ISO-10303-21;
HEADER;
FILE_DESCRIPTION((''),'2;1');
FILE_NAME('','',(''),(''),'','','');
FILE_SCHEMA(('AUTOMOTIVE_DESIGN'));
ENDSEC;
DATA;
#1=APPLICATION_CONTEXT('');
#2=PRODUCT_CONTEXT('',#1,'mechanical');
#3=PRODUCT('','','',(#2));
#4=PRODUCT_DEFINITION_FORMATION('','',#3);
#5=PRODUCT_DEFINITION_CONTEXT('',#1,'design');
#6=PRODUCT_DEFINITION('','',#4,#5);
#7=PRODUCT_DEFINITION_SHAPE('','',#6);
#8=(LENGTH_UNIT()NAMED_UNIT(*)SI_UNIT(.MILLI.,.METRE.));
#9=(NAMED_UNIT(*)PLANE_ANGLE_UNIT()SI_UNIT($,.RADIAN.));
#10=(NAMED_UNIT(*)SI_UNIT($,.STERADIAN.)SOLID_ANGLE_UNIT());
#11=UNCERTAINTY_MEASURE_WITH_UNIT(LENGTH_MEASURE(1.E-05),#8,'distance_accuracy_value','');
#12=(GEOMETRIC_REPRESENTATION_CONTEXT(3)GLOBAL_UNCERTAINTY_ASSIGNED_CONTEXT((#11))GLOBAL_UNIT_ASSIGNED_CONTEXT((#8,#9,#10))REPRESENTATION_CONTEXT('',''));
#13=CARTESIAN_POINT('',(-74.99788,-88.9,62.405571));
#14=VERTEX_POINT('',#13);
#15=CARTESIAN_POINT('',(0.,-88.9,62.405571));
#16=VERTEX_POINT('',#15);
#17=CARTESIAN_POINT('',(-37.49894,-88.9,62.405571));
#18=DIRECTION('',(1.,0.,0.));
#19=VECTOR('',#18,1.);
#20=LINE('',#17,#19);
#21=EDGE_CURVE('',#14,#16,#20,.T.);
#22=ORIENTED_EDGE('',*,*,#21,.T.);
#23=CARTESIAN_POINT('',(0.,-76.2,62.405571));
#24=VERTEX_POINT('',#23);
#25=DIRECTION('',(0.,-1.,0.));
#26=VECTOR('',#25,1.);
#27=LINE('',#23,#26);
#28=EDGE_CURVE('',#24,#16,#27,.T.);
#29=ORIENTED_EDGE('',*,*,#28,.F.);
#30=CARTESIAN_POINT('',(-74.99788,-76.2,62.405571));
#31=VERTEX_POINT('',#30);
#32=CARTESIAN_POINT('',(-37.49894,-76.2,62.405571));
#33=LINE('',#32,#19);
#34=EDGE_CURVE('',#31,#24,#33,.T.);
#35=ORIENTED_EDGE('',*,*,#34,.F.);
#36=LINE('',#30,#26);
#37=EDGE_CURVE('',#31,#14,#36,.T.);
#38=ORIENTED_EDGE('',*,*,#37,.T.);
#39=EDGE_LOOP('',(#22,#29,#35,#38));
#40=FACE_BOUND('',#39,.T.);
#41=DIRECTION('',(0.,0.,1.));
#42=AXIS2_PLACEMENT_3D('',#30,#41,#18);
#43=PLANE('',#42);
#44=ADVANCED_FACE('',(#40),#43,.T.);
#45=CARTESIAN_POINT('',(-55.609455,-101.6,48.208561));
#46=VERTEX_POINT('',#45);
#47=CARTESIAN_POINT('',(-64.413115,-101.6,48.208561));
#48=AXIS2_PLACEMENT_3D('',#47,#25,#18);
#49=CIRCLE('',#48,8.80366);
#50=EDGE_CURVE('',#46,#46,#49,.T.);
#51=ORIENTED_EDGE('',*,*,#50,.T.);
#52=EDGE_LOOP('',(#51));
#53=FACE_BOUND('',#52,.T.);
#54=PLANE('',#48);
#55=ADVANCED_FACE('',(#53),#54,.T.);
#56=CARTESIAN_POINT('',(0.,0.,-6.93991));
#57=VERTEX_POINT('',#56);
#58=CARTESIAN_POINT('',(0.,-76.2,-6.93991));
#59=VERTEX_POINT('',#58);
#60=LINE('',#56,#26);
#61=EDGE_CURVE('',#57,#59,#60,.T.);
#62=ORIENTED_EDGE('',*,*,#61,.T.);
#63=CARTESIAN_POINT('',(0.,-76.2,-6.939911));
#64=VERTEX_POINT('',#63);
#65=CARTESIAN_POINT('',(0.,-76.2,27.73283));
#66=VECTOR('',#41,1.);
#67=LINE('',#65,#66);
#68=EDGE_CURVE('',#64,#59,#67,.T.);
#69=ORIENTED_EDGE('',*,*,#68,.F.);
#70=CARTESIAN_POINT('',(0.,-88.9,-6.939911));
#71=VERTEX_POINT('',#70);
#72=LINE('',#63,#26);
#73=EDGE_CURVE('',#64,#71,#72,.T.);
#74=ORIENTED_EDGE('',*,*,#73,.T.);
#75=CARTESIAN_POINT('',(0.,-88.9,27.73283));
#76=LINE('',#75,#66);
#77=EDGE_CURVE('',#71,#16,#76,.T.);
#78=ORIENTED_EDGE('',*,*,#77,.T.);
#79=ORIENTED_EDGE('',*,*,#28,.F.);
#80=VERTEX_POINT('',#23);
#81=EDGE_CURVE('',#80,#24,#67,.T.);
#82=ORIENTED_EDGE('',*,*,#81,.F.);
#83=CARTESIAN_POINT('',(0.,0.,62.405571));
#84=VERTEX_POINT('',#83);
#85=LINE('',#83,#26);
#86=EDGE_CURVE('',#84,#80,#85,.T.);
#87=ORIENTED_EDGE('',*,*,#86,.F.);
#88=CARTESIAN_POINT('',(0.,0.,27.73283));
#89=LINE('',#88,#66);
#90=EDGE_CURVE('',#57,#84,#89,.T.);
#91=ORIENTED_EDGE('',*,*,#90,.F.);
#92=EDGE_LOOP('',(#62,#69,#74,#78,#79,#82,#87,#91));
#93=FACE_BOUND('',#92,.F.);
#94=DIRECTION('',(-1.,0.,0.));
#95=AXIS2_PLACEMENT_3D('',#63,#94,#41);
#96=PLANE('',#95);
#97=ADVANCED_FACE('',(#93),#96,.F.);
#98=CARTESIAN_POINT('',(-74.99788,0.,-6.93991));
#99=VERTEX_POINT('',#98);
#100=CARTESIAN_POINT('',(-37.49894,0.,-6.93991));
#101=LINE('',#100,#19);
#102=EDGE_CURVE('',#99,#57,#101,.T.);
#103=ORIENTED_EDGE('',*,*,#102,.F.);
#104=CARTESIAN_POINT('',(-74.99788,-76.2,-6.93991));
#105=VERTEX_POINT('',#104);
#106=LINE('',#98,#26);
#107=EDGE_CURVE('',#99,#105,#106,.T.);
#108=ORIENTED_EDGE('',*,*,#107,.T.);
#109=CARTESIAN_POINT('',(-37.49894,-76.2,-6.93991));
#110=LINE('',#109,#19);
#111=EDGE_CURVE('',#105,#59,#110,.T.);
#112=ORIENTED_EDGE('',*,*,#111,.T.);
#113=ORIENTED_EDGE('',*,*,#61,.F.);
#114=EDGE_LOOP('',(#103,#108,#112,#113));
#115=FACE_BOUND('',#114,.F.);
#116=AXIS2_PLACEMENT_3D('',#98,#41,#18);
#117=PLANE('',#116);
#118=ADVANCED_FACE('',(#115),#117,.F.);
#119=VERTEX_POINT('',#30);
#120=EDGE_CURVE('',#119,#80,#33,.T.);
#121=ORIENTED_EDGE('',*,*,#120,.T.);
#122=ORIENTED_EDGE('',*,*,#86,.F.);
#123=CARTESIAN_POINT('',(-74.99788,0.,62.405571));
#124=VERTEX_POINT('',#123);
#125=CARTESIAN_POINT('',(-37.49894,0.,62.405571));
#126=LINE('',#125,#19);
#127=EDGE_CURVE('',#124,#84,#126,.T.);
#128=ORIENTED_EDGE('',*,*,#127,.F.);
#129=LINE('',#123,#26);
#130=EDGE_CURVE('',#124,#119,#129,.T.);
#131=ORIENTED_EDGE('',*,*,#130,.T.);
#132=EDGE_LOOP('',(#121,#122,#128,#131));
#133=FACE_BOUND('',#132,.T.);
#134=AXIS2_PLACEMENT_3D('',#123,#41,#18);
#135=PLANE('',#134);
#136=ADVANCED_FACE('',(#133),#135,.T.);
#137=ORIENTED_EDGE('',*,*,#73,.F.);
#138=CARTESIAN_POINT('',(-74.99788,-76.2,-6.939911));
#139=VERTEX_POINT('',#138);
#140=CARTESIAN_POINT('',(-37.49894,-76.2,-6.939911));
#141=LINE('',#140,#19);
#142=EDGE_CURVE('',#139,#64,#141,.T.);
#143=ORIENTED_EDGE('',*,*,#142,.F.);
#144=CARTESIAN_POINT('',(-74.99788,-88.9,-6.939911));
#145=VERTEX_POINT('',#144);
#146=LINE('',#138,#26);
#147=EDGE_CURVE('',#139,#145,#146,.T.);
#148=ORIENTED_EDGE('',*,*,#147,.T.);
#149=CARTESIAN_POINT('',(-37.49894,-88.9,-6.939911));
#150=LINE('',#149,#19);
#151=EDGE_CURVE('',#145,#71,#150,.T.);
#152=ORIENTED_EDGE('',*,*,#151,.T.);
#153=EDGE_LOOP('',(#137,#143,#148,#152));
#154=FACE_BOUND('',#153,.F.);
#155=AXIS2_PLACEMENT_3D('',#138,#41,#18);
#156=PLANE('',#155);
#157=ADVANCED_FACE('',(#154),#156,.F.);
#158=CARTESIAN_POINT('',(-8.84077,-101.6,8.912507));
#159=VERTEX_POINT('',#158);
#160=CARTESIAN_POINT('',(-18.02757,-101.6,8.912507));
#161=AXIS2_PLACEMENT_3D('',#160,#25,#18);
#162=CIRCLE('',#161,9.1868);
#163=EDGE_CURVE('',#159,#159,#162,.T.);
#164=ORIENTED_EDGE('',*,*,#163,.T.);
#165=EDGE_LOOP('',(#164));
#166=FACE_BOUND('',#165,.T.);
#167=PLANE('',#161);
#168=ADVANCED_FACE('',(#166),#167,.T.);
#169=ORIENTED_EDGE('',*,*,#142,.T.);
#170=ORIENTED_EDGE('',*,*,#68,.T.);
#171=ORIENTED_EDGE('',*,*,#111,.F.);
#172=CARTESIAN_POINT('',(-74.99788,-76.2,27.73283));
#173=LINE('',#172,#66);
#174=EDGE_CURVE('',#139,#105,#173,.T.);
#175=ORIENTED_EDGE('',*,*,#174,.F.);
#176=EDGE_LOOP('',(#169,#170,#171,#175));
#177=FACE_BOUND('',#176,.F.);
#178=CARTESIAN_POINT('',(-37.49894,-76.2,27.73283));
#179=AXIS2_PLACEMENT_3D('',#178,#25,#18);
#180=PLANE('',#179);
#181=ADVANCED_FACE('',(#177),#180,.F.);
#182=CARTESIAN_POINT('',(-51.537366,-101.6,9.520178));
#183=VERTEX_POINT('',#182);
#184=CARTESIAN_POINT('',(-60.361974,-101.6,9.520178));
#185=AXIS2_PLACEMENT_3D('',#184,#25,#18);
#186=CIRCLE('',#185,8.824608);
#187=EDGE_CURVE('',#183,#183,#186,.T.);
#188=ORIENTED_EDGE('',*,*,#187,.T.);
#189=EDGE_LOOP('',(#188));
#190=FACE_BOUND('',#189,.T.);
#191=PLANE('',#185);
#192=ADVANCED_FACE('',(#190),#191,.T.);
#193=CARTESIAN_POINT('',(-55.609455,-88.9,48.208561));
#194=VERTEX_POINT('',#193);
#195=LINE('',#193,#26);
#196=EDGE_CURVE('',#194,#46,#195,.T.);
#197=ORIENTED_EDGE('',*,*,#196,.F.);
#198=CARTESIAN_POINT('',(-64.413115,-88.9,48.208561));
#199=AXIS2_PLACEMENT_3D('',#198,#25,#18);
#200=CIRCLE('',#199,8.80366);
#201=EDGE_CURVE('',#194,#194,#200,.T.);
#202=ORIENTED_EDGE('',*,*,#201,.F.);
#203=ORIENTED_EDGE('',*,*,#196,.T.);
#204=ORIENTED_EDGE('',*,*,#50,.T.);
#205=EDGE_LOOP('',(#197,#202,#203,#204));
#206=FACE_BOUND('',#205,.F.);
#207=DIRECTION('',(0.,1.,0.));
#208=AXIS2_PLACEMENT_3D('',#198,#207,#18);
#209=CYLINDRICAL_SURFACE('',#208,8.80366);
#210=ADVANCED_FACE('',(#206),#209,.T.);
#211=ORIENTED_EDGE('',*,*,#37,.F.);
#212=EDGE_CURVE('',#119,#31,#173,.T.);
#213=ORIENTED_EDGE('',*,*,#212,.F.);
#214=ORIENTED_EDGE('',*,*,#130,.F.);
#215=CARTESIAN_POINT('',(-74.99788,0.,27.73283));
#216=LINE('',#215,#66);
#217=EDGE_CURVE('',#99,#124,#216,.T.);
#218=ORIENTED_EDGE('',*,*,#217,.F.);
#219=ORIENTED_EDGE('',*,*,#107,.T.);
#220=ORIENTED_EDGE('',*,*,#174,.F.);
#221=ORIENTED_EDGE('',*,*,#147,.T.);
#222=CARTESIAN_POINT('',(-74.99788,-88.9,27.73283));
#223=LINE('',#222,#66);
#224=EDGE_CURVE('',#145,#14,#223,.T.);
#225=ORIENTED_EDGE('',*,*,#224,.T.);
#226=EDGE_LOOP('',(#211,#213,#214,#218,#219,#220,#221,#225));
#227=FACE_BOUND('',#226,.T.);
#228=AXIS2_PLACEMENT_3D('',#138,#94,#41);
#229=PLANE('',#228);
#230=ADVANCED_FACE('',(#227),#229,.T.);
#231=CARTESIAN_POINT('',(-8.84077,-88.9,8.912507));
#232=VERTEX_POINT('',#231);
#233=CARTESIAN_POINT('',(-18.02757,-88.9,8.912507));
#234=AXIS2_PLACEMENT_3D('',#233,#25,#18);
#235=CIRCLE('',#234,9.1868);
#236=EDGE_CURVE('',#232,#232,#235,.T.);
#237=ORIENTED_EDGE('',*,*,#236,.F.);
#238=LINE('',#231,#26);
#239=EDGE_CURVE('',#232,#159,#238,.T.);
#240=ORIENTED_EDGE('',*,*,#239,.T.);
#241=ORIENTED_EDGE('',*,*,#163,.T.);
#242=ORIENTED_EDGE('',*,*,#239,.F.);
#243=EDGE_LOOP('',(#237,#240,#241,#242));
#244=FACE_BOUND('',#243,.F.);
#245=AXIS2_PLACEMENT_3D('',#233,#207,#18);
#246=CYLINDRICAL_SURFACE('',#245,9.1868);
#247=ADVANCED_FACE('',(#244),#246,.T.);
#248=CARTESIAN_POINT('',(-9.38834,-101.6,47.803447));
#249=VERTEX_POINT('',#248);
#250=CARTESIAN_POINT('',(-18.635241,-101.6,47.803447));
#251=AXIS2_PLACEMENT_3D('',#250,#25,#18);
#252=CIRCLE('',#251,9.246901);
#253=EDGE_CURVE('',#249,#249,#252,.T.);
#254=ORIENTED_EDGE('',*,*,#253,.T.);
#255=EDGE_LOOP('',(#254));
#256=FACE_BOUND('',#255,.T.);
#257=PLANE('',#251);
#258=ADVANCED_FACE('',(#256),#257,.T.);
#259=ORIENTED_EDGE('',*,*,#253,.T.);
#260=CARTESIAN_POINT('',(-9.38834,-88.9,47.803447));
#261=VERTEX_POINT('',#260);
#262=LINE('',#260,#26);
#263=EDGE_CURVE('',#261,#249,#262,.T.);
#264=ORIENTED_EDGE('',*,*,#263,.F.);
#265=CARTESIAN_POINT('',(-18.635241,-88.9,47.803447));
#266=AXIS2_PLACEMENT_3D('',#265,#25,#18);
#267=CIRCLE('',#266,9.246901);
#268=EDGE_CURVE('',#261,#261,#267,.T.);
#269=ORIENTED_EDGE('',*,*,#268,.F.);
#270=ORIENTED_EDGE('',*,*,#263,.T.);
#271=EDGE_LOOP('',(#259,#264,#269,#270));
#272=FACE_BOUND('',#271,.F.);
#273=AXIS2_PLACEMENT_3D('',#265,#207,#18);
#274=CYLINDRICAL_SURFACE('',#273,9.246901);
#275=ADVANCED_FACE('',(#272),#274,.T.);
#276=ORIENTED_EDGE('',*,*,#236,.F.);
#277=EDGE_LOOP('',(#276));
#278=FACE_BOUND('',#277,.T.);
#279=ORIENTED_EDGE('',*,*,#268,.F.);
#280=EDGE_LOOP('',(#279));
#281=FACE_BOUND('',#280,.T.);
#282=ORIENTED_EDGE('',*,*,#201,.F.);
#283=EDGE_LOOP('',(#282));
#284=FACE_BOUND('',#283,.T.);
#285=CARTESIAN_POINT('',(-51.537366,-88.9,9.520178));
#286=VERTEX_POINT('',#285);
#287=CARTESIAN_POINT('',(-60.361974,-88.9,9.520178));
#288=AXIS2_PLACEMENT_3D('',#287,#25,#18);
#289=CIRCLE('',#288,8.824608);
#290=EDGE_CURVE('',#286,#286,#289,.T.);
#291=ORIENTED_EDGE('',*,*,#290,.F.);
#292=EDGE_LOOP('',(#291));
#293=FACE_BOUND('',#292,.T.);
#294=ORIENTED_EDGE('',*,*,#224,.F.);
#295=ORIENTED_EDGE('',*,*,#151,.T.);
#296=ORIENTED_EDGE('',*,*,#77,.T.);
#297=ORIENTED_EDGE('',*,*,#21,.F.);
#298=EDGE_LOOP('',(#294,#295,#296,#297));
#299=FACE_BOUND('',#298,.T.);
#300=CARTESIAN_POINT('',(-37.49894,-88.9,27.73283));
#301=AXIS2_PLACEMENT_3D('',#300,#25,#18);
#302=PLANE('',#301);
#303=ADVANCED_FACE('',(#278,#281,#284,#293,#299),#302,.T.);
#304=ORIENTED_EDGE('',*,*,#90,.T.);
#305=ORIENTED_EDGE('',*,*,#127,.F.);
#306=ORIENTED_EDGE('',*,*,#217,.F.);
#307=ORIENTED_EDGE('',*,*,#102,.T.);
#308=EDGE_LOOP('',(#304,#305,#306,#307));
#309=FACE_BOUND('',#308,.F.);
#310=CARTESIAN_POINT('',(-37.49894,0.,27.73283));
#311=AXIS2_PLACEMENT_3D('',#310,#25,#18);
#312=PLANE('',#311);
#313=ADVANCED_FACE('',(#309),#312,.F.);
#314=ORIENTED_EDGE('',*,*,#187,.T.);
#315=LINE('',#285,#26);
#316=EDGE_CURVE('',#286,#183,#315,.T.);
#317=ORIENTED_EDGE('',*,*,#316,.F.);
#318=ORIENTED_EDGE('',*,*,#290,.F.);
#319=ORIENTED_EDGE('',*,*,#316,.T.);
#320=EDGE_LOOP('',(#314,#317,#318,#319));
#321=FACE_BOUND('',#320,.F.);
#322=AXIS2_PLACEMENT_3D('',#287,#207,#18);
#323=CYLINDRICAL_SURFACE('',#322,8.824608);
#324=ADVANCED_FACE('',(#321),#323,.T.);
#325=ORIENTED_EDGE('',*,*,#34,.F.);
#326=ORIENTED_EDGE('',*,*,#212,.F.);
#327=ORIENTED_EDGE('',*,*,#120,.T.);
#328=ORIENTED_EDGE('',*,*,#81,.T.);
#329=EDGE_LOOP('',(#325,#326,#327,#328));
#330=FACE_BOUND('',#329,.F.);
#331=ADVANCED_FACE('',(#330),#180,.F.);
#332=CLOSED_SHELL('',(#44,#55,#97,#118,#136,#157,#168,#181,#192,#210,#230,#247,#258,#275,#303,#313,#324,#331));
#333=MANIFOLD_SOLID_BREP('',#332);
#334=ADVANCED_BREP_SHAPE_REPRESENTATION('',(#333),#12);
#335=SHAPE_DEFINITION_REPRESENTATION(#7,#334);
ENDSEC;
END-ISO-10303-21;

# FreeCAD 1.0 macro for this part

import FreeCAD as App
import Part
import Sketcher
from FreeCAD import Vector
Q = App.Units.Quantity


def add_polygon(sketch, points):
    """Adds a closed chain of lines whose ends are joined by coincident constraints."""
    first, n = sketch.GeometryCount, len(points)
    for a, b in zip(points, points[1:] + points[:1]):
        sketch.addGeometry(Part.LineSegment(App.Vector(*a, 0), App.Vector(*b, 0)), False)
    for i in range(n):
        sketch.addConstraint(Sketcher.Constraint("Coincident", first + i, 2, first + (i + 1) % n, 1))

doc = App.newDocument("Part")
body = doc.addObject("PartDesign::Body", "Body")

# Sketch on XZ plane
sketch1 = doc.addObject("Sketcher::SketchObject", "Sketch")
body.addObject(sketch1)
sketch1.AttachmentSupport = (doc.XZ_Plane, [""])
sketch1.MapMode = "FlatFace"
add_polygon(sketch1, [(-75, 62), (-75, -7), (0, -7), (0, 62)])  # lines 0-3
sketch1.addConstraint([
    Sketcher.Constraint("Vertical", 0),
    Sketcher.Constraint("Horizontal", 1),
    Sketcher.Constraint("Vertical", 2),
    Sketcher.Constraint("Horizontal", 3),
    Sketcher.Constraint("PointOnObject", 1, 2, -2),
    Sketcher.Constraint("DistanceX", 1, 1, 1, 2, 74.99788),
    Sketcher.Constraint("DistanceY", 0, 2, 0, 1, 69.345481),
    Sketcher.Constraint("DistanceY", 0, 2, -1, 1, 6.93991),
])
pad1 = doc.addObject("PartDesign::Pad", "Pad")
body.addObject(pad1)
pad1.Profile = sketch1
pad1.Length = Q("3 in")

# Sketch on XZ plane
sketch2 = doc.addObject("Sketcher::SketchObject", "Sketch001")
body.addObject(sketch2)
sketch2.AttachmentSupport = (doc.XZ_Plane, [""])
sketch2.MapMode = "FlatFace"
sketch2.AttachmentOffset = App.Placement(Vector(0, 0, 3 * 25.4), App.Rotation())
sketch2.addGeometry(Part.Circle(Vector(-61, 47, 0), Vector(0, 0, 1), 9), False)
sketch2.addConstraint([
    Sketcher.Constraint("Diameter", 0, 18.248128),
    Sketcher.Constraint("DistanceX", 0, 3, -1, 1, 60.767088),
    Sketcher.Constraint("DistanceY", -1, 1, 0, 3, 47.398333),
])
pad2 = doc.addObject("PartDesign::Pad", "Pad001")
body.addObject(pad2)
pad2.Profile = sketch2
pad2.Length = Q("0.5 in")

# Sketch on XZ plane
sketch3 = doc.addObject("Sketcher::SketchObject", "Sketch002")
body.addObject(sketch3)
sketch3.AttachmentSupport = (doc.XZ_Plane, [""])
sketch3.MapMode = "FlatFace"
sketch3.AttachmentOffset = App.Placement(Vector(0, 0, 3 * 25.4), App.Rotation())
add_polygon(sketch3, [(-75, 62), (-75, -7), (0, -7), (0, 62)])  # lines 0-3
sketch3.addGeometry(Part.Circle(Vector(-61, 47, 0), Vector(0, 0, 1), 9), False)  # 4
sketch3.addConstraint([
    Sketcher.Constraint("Vertical", 0),
    Sketcher.Constraint("Horizontal", 1),
    Sketcher.Constraint("Vertical", 2),
    Sketcher.Constraint("Horizontal", 3),
    Sketcher.Constraint("PointOnObject", 1, 2, -2),
    Sketcher.Constraint("Diameter", 4, 18.248128),
    Sketcher.Constraint("DistanceX", 1, 1, 1, 2, 74.99788),
    Sketcher.Constraint("DistanceY", 0, 2, 0, 1, 69.345482),
    Sketcher.Constraint("DistanceY", 0, 2, -1, 1, 6.939911),
    Sketcher.Constraint("DistanceX", 0, 2, 4, 3, 14.230792),
    Sketcher.Constraint("DistanceY", 4, 3, 2, 2, 15.007239),
])
pad3 = doc.addObject("PartDesign::Pad", "Pad002")
body.addObject(pad3)
pad3.Profile = sketch3
pad3.Length = Q("0.5 in")

# Sketch on XZ plane
sketch4 = doc.addObject("Sketcher::SketchObject", "Sketch003")
body.addObject(sketch4)
sketch4.AttachmentSupport = (doc.XZ_Plane, [""])
sketch4.MapMode = "FlatFace"
sketch4.AttachmentOffset = App.Placement(Vector(0, 0, 3.5 * 25.4), App.Rotation())
sketch4.addGeometry([
    Part.Circle(Vector(-64, 48, 0), Vector(0, 0, 1), 9),
    Part.Circle(Vector(-19, 48, 0), Vector(0, 0, 1), 9),
    Part.Circle(Vector(-18, 9, 0), Vector(0, 0, 1), 9),
    Part.Circle(Vector(-60, 10, 0), Vector(0, 0, 1), 9),
], False)
sketch4.addConstraint([
    Sketcher.Constraint("Diameter", 1, 18.493802),
    Sketcher.Constraint("Diameter", 2, 18.3736),
    Sketcher.Constraint("Diameter", 0, 17.60732),
    Sketcher.Constraint("Diameter", 3, 17.649216),
    Sketcher.Constraint("DistanceY", -1, 1, 0, 3, 48.208561),
    Sketcher.Constraint("DistanceX", 1, 3, -1, 1, 18.635241),
    Sketcher.Constraint("DistanceX", 2, 3, -1, 1, 18.02757),
    Sketcher.Constraint("DistanceY", 2, 3, 1, 3, 38.89094),
    Sketcher.Constraint("DistanceX", 0, 3, 3, 3, 4.051141),
    Sketcher.Constraint("DistanceY", 2, 3, 3, 3, 0.607671),
    Sketcher.Constraint("DistanceX", 0, 3, -1, 1, 64.413115),
    Sketcher.Constraint("DistanceY", -1, 1, 1, 3, 47.803447),
])
pad4 = doc.addObject("PartDesign::Pad", "Pad003")
body.addObject(pad4)
pad4.Profile = sketch4
pad4.Length = Q("0.5 in")

doc.recompute()
